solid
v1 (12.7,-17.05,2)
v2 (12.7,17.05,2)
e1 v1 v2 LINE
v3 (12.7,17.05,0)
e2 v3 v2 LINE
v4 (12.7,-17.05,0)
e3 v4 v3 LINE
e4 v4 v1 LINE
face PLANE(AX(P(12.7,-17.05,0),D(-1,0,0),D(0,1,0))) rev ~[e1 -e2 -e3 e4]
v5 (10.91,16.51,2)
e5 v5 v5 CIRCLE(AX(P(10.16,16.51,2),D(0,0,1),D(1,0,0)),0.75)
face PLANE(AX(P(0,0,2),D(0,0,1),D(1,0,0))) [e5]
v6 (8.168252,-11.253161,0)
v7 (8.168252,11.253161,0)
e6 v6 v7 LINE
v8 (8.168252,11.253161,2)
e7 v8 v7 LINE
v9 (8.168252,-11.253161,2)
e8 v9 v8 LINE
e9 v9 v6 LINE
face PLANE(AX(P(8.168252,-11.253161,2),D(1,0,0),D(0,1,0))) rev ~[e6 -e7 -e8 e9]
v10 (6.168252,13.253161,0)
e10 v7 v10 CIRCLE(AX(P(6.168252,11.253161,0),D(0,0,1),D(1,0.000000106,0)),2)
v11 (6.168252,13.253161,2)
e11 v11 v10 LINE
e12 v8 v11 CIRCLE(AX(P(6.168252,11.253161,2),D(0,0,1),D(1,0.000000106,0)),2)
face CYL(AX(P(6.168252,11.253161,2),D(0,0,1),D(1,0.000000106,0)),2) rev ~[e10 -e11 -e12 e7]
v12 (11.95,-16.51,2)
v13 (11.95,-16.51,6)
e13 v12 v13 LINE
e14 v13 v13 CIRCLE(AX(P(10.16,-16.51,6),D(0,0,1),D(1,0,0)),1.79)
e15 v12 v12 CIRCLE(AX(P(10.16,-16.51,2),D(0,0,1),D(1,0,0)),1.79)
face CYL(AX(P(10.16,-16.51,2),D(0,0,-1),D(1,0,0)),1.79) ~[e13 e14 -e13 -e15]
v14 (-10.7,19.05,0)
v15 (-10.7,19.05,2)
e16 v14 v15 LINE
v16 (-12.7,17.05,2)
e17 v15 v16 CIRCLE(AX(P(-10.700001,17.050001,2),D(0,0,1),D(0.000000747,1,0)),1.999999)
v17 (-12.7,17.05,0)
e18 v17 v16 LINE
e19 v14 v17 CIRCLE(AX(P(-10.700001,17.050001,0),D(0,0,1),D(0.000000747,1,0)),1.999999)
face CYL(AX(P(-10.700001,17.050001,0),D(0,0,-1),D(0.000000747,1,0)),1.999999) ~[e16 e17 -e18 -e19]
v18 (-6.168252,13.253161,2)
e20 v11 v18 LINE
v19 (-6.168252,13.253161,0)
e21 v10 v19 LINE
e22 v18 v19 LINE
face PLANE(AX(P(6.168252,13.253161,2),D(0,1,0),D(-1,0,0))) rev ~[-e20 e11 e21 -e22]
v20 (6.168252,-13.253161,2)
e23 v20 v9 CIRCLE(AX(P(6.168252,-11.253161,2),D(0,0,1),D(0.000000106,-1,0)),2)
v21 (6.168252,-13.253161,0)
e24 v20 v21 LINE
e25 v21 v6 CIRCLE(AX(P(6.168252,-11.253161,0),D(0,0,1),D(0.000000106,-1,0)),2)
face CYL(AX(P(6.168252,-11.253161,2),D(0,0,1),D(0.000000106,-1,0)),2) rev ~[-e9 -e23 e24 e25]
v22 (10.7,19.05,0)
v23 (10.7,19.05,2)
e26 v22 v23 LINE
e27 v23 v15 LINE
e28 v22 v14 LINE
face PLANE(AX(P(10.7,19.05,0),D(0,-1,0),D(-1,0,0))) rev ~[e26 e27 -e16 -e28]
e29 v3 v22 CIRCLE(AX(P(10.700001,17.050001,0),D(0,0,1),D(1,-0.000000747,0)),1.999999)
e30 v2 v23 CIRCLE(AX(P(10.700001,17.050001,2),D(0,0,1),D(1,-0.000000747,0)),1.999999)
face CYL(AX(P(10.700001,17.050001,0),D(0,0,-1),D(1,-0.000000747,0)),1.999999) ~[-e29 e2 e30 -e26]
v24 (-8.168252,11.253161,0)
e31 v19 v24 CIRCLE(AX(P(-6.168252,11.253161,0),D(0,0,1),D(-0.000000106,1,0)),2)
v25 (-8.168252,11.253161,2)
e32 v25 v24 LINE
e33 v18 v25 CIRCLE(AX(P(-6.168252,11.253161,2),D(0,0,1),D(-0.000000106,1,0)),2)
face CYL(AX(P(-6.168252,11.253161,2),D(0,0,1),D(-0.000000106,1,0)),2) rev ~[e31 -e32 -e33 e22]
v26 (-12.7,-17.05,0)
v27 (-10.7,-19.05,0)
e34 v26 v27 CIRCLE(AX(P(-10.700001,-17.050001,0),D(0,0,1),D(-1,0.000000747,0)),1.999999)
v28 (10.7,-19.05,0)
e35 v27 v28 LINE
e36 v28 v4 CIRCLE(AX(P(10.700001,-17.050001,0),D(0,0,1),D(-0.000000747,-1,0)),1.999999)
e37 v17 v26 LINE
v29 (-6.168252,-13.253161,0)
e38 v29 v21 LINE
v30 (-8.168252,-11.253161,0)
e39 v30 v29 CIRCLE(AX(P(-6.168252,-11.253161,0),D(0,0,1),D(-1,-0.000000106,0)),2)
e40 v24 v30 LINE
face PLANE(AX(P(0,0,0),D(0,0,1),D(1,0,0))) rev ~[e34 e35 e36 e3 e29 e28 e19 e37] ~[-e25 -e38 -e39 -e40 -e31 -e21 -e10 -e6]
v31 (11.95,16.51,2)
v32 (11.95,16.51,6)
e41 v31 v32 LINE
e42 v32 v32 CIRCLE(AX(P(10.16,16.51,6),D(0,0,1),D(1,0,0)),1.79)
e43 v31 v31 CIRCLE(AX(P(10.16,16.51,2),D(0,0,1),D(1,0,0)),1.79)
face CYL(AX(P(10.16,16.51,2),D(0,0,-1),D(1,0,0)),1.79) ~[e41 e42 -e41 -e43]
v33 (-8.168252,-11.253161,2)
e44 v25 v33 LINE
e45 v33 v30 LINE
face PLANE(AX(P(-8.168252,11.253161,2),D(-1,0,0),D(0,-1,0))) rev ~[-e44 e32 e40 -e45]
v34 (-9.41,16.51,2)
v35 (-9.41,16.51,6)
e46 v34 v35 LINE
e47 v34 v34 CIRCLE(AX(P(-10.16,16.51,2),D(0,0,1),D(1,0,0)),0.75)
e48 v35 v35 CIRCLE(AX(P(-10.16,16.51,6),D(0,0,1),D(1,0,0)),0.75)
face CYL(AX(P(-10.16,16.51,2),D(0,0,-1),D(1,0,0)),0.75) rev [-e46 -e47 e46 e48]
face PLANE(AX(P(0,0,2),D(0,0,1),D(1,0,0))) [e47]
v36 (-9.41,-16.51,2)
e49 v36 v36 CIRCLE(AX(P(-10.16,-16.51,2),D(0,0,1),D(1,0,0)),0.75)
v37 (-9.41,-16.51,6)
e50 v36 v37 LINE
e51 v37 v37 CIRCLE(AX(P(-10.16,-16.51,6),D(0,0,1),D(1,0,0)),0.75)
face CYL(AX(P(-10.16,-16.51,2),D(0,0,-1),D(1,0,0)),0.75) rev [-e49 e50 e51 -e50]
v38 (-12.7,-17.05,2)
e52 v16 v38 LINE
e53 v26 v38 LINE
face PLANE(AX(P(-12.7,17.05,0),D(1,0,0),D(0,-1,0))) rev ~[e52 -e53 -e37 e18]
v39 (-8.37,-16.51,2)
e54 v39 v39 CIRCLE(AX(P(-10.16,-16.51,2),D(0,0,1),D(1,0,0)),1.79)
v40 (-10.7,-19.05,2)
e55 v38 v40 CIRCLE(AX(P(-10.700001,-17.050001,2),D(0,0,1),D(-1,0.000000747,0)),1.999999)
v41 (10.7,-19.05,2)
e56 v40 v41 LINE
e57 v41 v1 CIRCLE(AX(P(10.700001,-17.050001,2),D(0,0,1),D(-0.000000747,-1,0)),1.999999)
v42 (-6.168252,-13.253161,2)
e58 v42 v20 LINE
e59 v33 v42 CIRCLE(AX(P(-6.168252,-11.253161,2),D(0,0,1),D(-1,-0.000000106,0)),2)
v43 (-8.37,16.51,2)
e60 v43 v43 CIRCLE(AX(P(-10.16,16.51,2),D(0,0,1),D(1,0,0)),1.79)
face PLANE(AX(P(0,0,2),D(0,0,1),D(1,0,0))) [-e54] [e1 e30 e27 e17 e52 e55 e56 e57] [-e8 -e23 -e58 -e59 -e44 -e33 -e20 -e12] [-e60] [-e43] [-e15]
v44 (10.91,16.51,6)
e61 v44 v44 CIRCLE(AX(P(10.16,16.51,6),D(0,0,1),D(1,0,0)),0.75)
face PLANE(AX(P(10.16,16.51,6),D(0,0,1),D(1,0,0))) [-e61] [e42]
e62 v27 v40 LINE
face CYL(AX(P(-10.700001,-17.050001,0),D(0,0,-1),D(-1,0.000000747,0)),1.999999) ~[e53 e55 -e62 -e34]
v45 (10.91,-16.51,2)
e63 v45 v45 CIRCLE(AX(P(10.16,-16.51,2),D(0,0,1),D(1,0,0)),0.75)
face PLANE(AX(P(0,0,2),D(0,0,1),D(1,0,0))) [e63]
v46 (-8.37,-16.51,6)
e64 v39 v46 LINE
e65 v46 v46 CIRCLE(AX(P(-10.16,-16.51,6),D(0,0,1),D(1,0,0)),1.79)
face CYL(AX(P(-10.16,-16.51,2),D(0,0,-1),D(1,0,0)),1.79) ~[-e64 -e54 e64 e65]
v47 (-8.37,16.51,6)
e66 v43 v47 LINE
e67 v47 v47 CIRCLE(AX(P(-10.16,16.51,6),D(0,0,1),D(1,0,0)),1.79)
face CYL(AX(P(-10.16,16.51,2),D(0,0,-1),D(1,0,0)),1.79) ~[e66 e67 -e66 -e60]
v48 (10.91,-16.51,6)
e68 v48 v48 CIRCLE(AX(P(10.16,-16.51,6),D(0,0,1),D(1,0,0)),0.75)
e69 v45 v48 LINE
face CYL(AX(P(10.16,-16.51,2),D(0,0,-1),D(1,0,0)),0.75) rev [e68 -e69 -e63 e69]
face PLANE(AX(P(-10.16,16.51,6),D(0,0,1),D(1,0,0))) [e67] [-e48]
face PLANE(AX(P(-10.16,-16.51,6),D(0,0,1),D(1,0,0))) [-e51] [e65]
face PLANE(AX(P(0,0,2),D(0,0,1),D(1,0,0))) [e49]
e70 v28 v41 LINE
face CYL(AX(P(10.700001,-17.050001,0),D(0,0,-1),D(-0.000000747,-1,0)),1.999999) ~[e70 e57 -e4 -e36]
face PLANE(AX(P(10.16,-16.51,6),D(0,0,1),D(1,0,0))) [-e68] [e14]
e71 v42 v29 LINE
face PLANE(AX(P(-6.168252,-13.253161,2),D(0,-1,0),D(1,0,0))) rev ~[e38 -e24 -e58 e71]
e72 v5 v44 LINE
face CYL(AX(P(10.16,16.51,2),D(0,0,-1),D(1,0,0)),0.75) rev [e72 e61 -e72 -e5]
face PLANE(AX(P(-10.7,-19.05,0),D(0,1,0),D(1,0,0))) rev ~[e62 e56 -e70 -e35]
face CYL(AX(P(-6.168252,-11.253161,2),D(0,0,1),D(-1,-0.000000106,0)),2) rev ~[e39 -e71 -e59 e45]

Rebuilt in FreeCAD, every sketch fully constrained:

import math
import FreeCAD as App
import Part
import Sketcher

V = App.Vector

doc = App.newDocument("Part")
params = doc.addObject("Spreadsheet::Sheet", "Params")
for row, (alias, value) in enumerate([
    ("sketch1_radius", "1.999999 mm"),
    ("sketch1_width", "21.4 mm"),
    ("sketch1_height", "34.1 mm"),
    ("pad1_length", "2 mm"),
    ("sketch2_diameter", "1.5 mm"),
    ("sketch2_diameter2", "3.58 mm"),
    ("pad2_length", "4 mm"),
    ("sketch3_radius", "2 mm"),
    ("pocket1_length", "2 mm"),
], start=1):
    params.set(f"A{row}", alias)
    params.set(f"B{row}", "=" + value)
    params.setAlias(f"B{row}", alias)

body = doc.addObject("PartDesign::Body", "Body")

# Sketch on XY plane
sketch1 = body.newObject("Sketcher::SketchObject", "Sketch")
sketch1.AttachmentSupport = (doc.getObject("XY_Plane"), [""])
sketch1.MapMode = "FlatFace"
sketch1.addGeometry(Part.LineSegment(V(10.7, 19.05, 0), V(-10.7, 19.05, 0)), False)
sketch1.addGeometry(Part.ArcOfCircle(Part.Circle(V(-10.700001, 17.050001, 0), V(0, 0, 1), 1.999999), math.radians(89.999957), math.radians(180.000043)), False)
sketch1.addGeometry(Part.LineSegment(V(-12.7, 17.05, 0), V(-12.7, -17.05, 0)), False)
sketch1.addGeometry(Part.ArcOfCircle(Part.Circle(V(-10.700001, -17.050001, 0), V(0, 0, 1), 1.999999), math.radians(179.999957), math.radians(270.000043)), False)
sketch1.addGeometry(Part.LineSegment(V(-10.7, -19.05, 0), V(10.7, -19.05, 0)), False)
sketch1.addGeometry(Part.ArcOfCircle(Part.Circle(V(10.700001, -17.050001, 0), V(0, 0, 1), 1.999999), math.radians(-90.000043), math.radians(0.000043)), False)
sketch1.addGeometry(Part.LineSegment(V(12.7, -17.05, 0), V(12.7, 17.05, 0)), False)
sketch1.addGeometry(Part.ArcOfCircle(Part.Circle(V(10.700001, 17.050001, 0), V(0, 0, 1), 1.999999), math.radians(-0.000043), math.radians(90.000043)), False)
sketch1.addConstraint(Sketcher.Constraint("Tangent", 0, 2, 1, 1))
sketch1.addConstraint(Sketcher.Constraint("Tangent", 1, 2, 2, 1))
sketch1.addConstraint(Sketcher.Constraint("Tangent", 2, 2, 3, 1))
sketch1.addConstraint(Sketcher.Constraint("Tangent", 3, 2, 4, 1))
sketch1.addConstraint(Sketcher.Constraint("Tangent", 4, 2, 5, 1))
sketch1.addConstraint(Sketcher.Constraint("Tangent", 5, 2, 6, 1))
sketch1.addConstraint(Sketcher.Constraint("Tangent", 6, 2, 7, 1))
sketch1.addConstraint(Sketcher.Constraint("Tangent", 7, 2, 0, 1))
sketch1.addConstraint(Sketcher.Constraint("Horizontal", 0))
sketch1.addConstraint(Sketcher.Constraint("Vertical", 2))
sketch1.addConstraint(Sketcher.Constraint("Horizontal", 4))
sketch1.addConstraint(Sketcher.Constraint("Vertical", 6))
sketch1.addConstraint(Sketcher.Constraint("Equal", 1, 3))
sketch1.addConstraint(Sketcher.Constraint("Equal", 3, 5))
sketch1.addConstraint(Sketcher.Constraint("Equal", 5, 7))
sketch1.addConstraint(Sketcher.Constraint("Symmetric", 1, 3, 5, 3, -1, 1))
sketch1.addConstraint(Sketcher.Constraint("Radius", 1, 1.999999))
sketch1.addConstraint(Sketcher.Constraint("DistanceX", 0, 2, 0, 1, 21.4))
sketch1.addConstraint(Sketcher.Constraint("DistanceY", 2, 2, 2, 1, 34.1))
sketch1.setExpression("Constraints[16]", "Params.sketch1_radius")
sketch1.setExpression("Constraints[17]", "Params.sketch1_width")
sketch1.setExpression("Constraints[18]", "Params.sketch1_height")
pad1 = body.newObject("PartDesign::Pad", "Pad")
pad1.Profile = sketch1
pad1.setExpression("Length", "Params.pad1_length")

# Sketch on XY plane
sketch2 = body.newObject("Sketcher::SketchObject", "Sketch001")
sketch2.AttachmentSupport = (doc.getObject("XY_Plane"), [""])
sketch2.MapMode = "FlatFace"
sketch2.AttachmentOffset = App.Placement(V(0, 0, 2), App.Rotation())
sketch2.addGeometry(Part.Circle(V(-10.16, 16.51, 0), V(0, 0, 1), 1.79), False)
sketch2.addGeometry(Part.Circle(V(-10.16, 16.51, 0), V(0, 0, 1), 0.75), False)
sketch2.addGeometry(Part.Circle(V(10.16, 16.51, 0), V(0, 0, 1), 1.79), False)
sketch2.addGeometry(Part.Circle(V(10.16, 16.51, 0), V(0, 0, 1), 0.75), False)
sketch2.addGeometry(Part.Circle(V(10.16, -16.51, 0), V(0, 0, 1), 1.79), False)
sketch2.addGeometry(Part.Circle(V(10.16, -16.51, 0), V(0, 0, 1), 0.75), False)
sketch2.addGeometry(Part.Circle(V(-10.16, -16.51, 0), V(0, 0, 1), 1.79), False)
sketch2.addGeometry(Part.Circle(V(-10.16, -16.51, 0), V(0, 0, 1), 0.75), False)
sketch2.addConstraint(Sketcher.Constraint("Coincident", 1, 3, 0, 3))
sketch2.addConstraint(Sketcher.Constraint("Coincident", 3, 3, 2, 3))
sketch2.addConstraint(Sketcher.Constraint("Coincident", 5, 3, 4, 3))
sketch2.addConstraint(Sketcher.Constraint("Coincident", 7, 3, 6, 3))
sketch2.addConstraint(Sketcher.Constraint("Equal", 0, 2))
sketch2.addConstraint(Sketcher.Constraint("Equal", 1, 3))
sketch2.addConstraint(Sketcher.Constraint("Equal", 2, 4))
sketch2.addConstraint(Sketcher.Constraint("Equal", 3, 5))
sketch2.addConstraint(Sketcher.Constraint("Equal", 4, 6))
sketch2.addConstraint(Sketcher.Constraint("Equal", 5, 7))
sketch2.addConstraint(Sketcher.Constraint("Symmetric", 0, 3, 4, 3, -1, 1))
sketch2.addConstraint(Sketcher.Constraint("Symmetric", 2, 3, 6, 3, -1, 1))
sketch2.addConstraint(Sketcher.Constraint("Symmetric", 0, 3, 2, 3, -2))
sketch2.addConstraint(Sketcher.Constraint("Diameter", 1, 1.5))
sketch2.addConstraint(Sketcher.Constraint("Diameter", 0, 3.58))
sketch2.addConstraint(Sketcher.Constraint("DistanceX", 0, 3, -1, 1, 10.16))
sketch2.addConstraint(Sketcher.Constraint("DistanceY", -1, 1, 0, 3, 16.51))
sketch2.setExpression("Constraints[13]", "Params.sketch2_diameter")
sketch2.setExpression("Constraints[14]", "Params.sketch2_diameter2")
pad2 = body.newObject("PartDesign::Pad", "Pad001")
pad2.Profile = sketch2
pad2.setExpression("Length", "Params.pad2_length")

# Sketch on XY plane
sketch3 = body.newObject("Sketcher::SketchObject", "Sketch002")
sketch3.AttachmentSupport = (doc.getObject("XY_Plane"), [""])
sketch3.MapMode = "FlatFace"
sketch3.AttachmentOffset = App.Placement(V(0, 0, 2), App.Rotation())
sketch3.addGeometry(Part.LineSegment(V(6.168252, 13.253161, 0), V(-6.168252, 13.253161, 0)), False)
sketch3.addGeometry(Part.ArcOfCircle(Part.Circle(V(-6.168252, 11.253161, 0), V(0, 0, 1), 2), math.radians(90.000006), math.radians(179.999994)), False)
sketch3.addGeometry(Part.LineSegment(V(-8.168252, 11.253161, 0), V(-8.168252, -11.253161, 0)), False)
sketch3.addGeometry(Part.ArcOfCircle(Part.Circle(V(-6.168252, -11.253161, 0), V(0, 0, 1), 2), math.radians(-179.999994), math.radians(-90.000006)), False)
sketch3.addGeometry(Part.LineSegment(V(-6.168252, -13.253161, 0), V(6.168252, -13.253161, 0)), False)
sketch3.addGeometry(Part.ArcOfCircle(Part.Circle(V(6.168252, -11.253161, 0), V(0, 0, 1), 2), math.radians(-89.999994), math.radians(-0.000006)), False)
sketch3.addGeometry(Part.LineSegment(V(8.168252, -11.253161, 0), V(8.168252, 11.253161, 0)), False)
sketch3.addGeometry(Part.ArcOfCircle(Part.Circle(V(6.168252, 11.253161, 0), V(0, 0, 1), 2), math.radians(0.000006), math.radians(89.999994)), False)
sketch3.addConstraint(Sketcher.Constraint("Tangent", 0, 2, 1, 1))
sketch3.addConstraint(Sketcher.Constraint("Tangent", 1, 2, 2, 1))
sketch3.addConstraint(Sketcher.Constraint("Tangent", 2, 2, 3, 1))
sketch3.addConstraint(Sketcher.Constraint("Tangent", 3, 2, 4, 1))
sketch3.addConstraint(Sketcher.Constraint("Tangent", 4, 2, 5, 1))
sketch3.addConstraint(Sketcher.Constraint("Tangent", 5, 2, 6, 1))
sketch3.addConstraint(Sketcher.Constraint("Tangent", 6, 2, 7, 1))
sketch3.addConstraint(Sketcher.Constraint("Tangent", 7, 2, 0, 1))
sketch3.addConstraint(Sketcher.Constraint("Horizontal", 0))
sketch3.addConstraint(Sketcher.Constraint("Vertical", 2))
sketch3.addConstraint(Sketcher.Constraint("Horizontal", 4))
sketch3.addConstraint(Sketcher.Constraint("Vertical", 6))
sketch3.addConstraint(Sketcher.Constraint("Equal", 1, 3))
sketch3.addConstraint(Sketcher.Constraint("Equal", 3, 5))
sketch3.addConstraint(Sketcher.Constraint("Equal", 5, 7))
sketch3.addConstraint(Sketcher.Constraint("Symmetric", 1, 3, 5, 3, -1, 1))
sketch3.addConstraint(Sketcher.Constraint("Radius", 1, 2.0))
sketch3.addConstraint(Sketcher.Constraint("DistanceX", 0, 2, 0, 1, 12.336504))
sketch3.addConstraint(Sketcher.Constraint("DistanceY", 2, 2, 2, 1, 22.506322))
sketch3.setExpression("Constraints[16]", "Params.sketch3_radius")
pocket1 = body.newObject("PartDesign::Pocket", "Pocket")
pocket1.Profile = sketch3
pocket1.setExpression("Length", "Params.pocket1_length")

doc.recompute()
